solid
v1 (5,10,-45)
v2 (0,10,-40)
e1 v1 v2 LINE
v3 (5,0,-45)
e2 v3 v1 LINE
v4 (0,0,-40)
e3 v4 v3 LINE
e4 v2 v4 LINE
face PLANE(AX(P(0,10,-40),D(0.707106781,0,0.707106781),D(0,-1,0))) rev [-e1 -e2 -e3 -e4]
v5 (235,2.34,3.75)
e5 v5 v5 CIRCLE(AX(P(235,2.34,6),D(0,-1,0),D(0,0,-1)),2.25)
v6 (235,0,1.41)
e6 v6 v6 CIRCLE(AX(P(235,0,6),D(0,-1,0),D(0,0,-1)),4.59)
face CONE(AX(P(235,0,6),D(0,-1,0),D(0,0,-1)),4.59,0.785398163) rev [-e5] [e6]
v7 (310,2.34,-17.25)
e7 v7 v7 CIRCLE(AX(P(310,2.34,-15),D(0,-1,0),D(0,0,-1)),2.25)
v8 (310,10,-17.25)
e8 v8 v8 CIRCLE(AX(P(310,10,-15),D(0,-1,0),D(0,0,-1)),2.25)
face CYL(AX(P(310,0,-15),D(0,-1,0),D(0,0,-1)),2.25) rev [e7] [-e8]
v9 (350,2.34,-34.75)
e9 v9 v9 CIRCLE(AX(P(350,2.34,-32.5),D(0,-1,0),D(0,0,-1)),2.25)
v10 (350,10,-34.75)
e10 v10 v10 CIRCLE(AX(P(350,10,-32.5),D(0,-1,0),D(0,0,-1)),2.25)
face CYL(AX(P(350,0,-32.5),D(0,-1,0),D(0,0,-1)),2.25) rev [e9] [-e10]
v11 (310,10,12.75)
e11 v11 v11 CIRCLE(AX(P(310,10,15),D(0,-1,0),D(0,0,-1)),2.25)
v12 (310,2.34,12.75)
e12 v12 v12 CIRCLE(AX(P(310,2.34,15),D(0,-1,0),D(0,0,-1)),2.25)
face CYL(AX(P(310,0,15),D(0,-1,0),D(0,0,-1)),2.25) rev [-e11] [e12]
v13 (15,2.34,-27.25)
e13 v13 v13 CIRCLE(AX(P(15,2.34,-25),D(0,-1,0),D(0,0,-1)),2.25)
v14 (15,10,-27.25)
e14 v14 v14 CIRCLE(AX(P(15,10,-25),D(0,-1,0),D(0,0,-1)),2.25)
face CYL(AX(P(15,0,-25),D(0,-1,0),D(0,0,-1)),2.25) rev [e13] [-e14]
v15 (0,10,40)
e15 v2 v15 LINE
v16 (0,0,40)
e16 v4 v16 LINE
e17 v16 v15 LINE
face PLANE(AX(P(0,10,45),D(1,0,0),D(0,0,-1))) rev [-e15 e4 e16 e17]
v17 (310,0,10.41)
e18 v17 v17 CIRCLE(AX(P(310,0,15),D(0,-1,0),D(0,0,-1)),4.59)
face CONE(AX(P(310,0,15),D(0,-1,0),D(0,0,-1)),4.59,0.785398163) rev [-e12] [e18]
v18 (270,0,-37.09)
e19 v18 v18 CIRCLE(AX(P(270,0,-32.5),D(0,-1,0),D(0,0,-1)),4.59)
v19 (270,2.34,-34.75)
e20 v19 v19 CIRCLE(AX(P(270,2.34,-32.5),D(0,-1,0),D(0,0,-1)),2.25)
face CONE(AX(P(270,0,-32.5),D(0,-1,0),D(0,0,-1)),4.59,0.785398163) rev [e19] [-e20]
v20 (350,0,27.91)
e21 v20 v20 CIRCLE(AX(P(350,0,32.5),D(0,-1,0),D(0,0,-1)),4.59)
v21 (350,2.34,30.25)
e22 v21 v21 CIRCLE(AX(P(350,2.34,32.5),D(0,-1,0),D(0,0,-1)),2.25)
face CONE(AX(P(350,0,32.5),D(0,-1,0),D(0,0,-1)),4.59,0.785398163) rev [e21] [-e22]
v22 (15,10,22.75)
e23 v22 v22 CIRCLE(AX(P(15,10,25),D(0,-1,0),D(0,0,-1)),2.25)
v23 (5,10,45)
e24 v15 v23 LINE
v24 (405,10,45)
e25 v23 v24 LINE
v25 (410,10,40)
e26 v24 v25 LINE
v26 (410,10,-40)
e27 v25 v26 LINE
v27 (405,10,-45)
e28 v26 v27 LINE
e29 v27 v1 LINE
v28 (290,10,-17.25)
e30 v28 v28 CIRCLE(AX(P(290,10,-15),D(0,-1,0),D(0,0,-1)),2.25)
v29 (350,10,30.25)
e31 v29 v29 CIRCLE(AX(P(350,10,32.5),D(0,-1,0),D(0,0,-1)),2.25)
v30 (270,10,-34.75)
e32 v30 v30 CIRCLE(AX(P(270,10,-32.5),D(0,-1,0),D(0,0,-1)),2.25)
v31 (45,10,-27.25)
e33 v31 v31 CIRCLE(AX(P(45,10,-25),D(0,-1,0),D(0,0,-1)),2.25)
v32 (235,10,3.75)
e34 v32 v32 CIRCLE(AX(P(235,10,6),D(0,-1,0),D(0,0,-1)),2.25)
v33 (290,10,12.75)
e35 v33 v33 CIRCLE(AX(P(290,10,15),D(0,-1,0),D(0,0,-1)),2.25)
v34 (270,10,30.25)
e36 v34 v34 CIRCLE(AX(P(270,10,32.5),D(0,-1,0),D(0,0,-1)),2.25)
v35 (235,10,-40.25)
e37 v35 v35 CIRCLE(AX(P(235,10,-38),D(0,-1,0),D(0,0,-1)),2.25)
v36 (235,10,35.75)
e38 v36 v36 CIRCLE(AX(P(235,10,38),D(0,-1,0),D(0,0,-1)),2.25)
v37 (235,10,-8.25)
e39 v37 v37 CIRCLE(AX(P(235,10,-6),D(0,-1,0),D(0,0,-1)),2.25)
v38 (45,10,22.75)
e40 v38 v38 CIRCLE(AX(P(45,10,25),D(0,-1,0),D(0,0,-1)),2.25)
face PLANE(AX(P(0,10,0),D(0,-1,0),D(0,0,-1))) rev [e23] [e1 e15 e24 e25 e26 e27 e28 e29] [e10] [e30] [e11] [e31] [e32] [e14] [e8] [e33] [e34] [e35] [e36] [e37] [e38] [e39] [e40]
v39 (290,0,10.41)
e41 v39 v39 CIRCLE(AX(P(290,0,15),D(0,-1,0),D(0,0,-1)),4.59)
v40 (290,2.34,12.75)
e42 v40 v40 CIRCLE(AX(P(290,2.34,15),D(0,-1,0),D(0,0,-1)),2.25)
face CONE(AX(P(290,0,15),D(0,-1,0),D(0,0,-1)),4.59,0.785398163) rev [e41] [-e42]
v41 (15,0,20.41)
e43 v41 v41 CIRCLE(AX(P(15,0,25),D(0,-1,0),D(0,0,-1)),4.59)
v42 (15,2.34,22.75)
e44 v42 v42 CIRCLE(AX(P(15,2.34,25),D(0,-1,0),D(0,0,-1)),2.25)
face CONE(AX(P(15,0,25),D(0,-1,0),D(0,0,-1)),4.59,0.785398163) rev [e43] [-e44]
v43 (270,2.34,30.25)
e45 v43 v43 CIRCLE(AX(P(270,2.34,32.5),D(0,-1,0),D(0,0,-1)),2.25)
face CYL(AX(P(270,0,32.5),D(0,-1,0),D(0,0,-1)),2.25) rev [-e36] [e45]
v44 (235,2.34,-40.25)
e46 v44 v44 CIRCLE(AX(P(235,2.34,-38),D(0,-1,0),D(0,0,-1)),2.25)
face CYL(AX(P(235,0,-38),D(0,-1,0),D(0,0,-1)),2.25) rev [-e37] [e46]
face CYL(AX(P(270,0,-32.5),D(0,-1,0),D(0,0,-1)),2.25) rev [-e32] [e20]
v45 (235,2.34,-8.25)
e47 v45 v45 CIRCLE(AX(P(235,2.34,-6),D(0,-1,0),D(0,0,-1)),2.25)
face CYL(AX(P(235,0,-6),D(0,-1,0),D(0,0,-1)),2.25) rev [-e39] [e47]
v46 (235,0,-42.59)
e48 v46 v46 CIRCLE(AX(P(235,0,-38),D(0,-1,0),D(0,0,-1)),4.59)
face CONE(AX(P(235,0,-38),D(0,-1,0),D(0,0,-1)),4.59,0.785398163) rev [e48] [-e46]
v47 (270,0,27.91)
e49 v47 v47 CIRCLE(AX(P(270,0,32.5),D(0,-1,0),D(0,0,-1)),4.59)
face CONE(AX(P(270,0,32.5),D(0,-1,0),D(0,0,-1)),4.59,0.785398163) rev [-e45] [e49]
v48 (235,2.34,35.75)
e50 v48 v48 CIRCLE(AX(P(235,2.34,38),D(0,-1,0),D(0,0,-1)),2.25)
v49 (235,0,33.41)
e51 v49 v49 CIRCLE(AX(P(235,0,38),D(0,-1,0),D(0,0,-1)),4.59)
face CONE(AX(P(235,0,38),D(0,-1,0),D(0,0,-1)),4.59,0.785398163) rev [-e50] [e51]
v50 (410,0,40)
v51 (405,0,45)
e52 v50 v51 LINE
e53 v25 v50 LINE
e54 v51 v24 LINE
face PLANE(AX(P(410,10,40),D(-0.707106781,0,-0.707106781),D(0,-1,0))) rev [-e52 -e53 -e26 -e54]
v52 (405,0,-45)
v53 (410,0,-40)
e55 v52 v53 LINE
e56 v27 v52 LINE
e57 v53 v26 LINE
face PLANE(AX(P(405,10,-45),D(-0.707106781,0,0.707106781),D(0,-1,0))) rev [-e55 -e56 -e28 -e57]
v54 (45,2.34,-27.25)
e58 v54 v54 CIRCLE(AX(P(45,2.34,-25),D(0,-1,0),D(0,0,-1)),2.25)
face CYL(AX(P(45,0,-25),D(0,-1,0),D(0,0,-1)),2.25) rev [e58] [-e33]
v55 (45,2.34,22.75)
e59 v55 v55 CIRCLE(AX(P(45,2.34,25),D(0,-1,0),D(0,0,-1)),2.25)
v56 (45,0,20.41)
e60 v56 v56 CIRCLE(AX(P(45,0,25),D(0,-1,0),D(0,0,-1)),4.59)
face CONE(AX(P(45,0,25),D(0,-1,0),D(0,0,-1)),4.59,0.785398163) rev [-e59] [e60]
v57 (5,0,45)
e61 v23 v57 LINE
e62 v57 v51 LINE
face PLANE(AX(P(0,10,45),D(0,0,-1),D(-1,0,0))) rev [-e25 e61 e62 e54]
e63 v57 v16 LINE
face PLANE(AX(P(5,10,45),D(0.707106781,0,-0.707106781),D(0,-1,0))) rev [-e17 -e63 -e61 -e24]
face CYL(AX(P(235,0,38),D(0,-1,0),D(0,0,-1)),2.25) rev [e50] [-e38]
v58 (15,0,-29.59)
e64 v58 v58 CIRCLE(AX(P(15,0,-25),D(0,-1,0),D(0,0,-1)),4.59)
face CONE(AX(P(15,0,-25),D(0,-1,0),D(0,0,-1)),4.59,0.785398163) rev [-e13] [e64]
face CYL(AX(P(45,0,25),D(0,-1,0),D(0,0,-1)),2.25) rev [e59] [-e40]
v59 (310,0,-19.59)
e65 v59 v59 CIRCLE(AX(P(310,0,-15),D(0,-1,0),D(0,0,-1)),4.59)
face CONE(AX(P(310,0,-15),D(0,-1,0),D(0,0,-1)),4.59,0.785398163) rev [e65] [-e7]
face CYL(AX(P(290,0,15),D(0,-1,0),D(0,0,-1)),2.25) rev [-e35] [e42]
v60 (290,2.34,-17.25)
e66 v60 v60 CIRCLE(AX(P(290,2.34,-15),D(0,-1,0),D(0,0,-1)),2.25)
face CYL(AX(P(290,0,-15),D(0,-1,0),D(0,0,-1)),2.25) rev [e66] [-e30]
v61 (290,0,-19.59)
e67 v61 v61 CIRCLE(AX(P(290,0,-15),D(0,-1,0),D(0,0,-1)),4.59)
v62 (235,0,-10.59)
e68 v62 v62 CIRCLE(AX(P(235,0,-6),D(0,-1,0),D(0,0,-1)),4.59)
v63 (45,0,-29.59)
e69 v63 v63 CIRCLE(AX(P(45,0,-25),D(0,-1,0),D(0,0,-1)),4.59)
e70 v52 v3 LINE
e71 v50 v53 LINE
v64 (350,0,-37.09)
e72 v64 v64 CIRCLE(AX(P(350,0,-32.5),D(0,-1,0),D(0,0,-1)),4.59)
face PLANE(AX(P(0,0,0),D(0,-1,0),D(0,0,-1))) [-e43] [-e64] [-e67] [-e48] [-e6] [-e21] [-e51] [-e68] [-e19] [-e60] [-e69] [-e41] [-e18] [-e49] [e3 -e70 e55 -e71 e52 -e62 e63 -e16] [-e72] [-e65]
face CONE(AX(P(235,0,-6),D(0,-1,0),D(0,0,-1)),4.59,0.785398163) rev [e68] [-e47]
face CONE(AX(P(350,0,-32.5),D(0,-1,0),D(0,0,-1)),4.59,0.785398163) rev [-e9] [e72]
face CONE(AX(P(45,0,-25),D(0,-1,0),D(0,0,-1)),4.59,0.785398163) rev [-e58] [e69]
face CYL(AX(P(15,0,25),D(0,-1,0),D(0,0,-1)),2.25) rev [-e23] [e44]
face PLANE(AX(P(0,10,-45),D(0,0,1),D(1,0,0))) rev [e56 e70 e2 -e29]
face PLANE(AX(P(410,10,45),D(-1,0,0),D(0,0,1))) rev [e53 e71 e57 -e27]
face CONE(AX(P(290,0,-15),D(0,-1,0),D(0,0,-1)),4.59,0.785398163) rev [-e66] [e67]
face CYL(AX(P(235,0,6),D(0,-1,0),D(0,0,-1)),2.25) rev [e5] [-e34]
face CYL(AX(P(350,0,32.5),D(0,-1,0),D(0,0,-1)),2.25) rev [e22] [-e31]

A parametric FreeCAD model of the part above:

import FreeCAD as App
import Part
import Sketcher
from FreeCAD import Vector


def edges_at(feature, points):
    """Names of the edges that pass closest to the given points."""
    edges = feature.Shape.Edges
    near = lambda p: min(range(len(edges)), key=lambda i: edges[i].distToShape(Part.Vertex(*p))[0])
    return sorted({f"Edge{near(p) + 1}" for p in points})


def add_polygon(sketch, points):
    """Adds a closed chain of lines whose ends are joined by coincident constraints."""
    first, n = sketch.GeometryCount, len(points)
    for a, b in zip(points, points[1:] + points[:1]):
        sketch.addGeometry(Part.LineSegment(App.Vector(*a, 0), App.Vector(*b, 0)), False)
    for i in range(n):
        sketch.addConstraint(Sketcher.Constraint("Coincident", first + i, 2, first + (i + 1) % n, 1))

doc = App.newDocument("Part")
body = doc.addObject("PartDesign::Body", "Body")

sketch1 = doc.addObject("Sketcher::SketchObject", "Sketch")
body.addObject(sketch1)
sketch1.AttachmentSupport = (doc.XZ_Plane, [""])
sketch1.MapMode = "FlatFace"
add_polygon(sketch1, [(0, -45), (0, 45), (410, 45), (410, -45)])
sketch1.addConstraint(Sketcher.Constraint("Vertical", 0))
sketch1.addConstraint(Sketcher.Constraint("Horizontal", 1))
sketch1.addConstraint(Sketcher.Constraint("Vertical", 2))
sketch1.addConstraint(Sketcher.Constraint("Horizontal", 3))
sketch1.addConstraint(Sketcher.Constraint("Symmetric", 0, 2, 3, 2, -1, 1))
sketch1.addConstraint(Sketcher.Constraint("DistanceX", 1, 1, 1, 2, 410.0))
sketch1.addConstraint(Sketcher.Constraint("DistanceY", 0, 1, 0, 2, 90.0))
pad1 = doc.addObject("PartDesign::Pad", "Pad")
body.addObject(pad1)
pad1.Profile = sketch1
pad1.Length = 10
pad1.Reversed = True
doc.recompute()

chamfer = doc.addObject("PartDesign::Chamfer", "Chamfer")
body.addObject(chamfer)
chamfer.Base = (pad1, edges_at(pad1, [
    (410, 5, 45),
    (0, 5, 45),
    (0, 5, -45),
    (410, 5, -45),
]))
chamfer.Size = 5

sketch2 = doc.addObject("Sketcher::SketchObject", "Sketch001")
body.addObject(sketch2)
sketch2.AttachmentSupport = (doc.XZ_Plane, [""])
sketch2.MapMode = "FlatFace"
sketch2.addGeometry(Part.Circle(Vector(15, 25, 0), Vector(0, 0, 1), 2.2), False)
sketch2.addGeometry(Part.Circle(Vector(45, -25, 0), Vector(0, 0, 1), 2.2), False)
sketch2.addGeometry(Part.Circle(Vector(45, 25, 0), Vector(0, 0, 1), 2.2), False)
sketch2.addGeometry(Part.Circle(Vector(15, -25, 0), Vector(0, 0, 1), 2.2), False)
sketch2.addConstraint(Sketcher.Constraint("Equal", 0, 1))
sketch2.addConstraint(Sketcher.Constraint("Equal", 1, 2))
sketch2.addConstraint(Sketcher.Constraint("Equal", 2, 3))
sketch2.addConstraint(Sketcher.Constraint("Symmetric", 1, 3, 2, 3, -1))
sketch2.addConstraint(Sketcher.Constraint("Symmetric", 0, 3, 3, 3, -1))
sketch2.addConstraint(Sketcher.Constraint("Horizontal", 0, 3, 2, 3))
sketch2.addConstraint(Sketcher.Constraint("Diameter", 0, 4.5))
sketch2.addConstraint(Sketcher.Constraint("DistanceX", -1, 1, 0, 3, 15.0))
sketch2.addConstraint(Sketcher.Constraint("DistanceY", -1, 1, 0, 3, 25.0))
sketch2.addConstraint(Sketcher.Constraint("DistanceX", -1, 1, 1, 3, 45.0))
doc.recompute()
hole = doc.addObject("PartDesign::Hole", "Hole")
body.addObject(hole)
hole.Profile = sketch2
hole.ThreadType = "None"
hole.Diameter = 4.5
hole.DepthType = "ThroughAll"
hole.HoleCutType = "Countersink"
hole.HoleCutDiameter = 9.18
hole.HoleCutCountersinkAngle = 90

sketch3 = doc.addObject("Sketcher::SketchObject", "Sketch002")
body.addObject(sketch3)
sketch3.AttachmentSupport = (doc.XZ_Plane, [""])
sketch3.MapMode = "FlatFace"
sketch3.addGeometry(Part.Circle(Vector(235, -38, 0), Vector(0, 0, 1), 2.2), False)
sketch3.addGeometry(Part.Circle(Vector(235, -6, 0), Vector(0, 0, 1), 2.2), False)
sketch3.addGeometry(Part.Circle(Vector(235, 6, 0), Vector(0, 0, 1), 2.2), False)
sketch3.addGeometry(Part.Circle(Vector(235, 38, 0), Vector(0, 0, 1), 2.2), False)
sketch3.addConstraint(Sketcher.Constraint("Equal", 0, 1))
sketch3.addConstraint(Sketcher.Constraint("Equal", 1, 2))
sketch3.addConstraint(Sketcher.Constraint("Equal", 2, 3))
sketch3.addConstraint(Sketcher.Constraint("Symmetric", 1, 3, 2, 3, -1))
sketch3.addConstraint(Sketcher.Constraint("Symmetric", 0, 3, 3, 3, -1))
sketch3.addConstraint(Sketcher.Constraint("Vertical", 0, 3, 1, 3))
sketch3.addConstraint(Sketcher.Constraint("Diameter", 0, 4.5))
sketch3.addConstraint(Sketcher.Constraint("DistanceX", -1, 1, 0, 3, 235.0))
sketch3.addConstraint(Sketcher.Constraint("DistanceY", 0, 3, -1, 1, 38.0))
sketch3.addConstraint(Sketcher.Constraint("DistanceY", 1, 3, -1, 1, 6.0))
doc.recompute()
hole2 = doc.addObject("PartDesign::Hole", "Hole001")
body.addObject(hole2)
hole2.Profile = sketch3
hole2.ThreadType = "None"
hole2.Diameter = 4.5
hole2.DepthType = "ThroughAll"
hole2.HoleCutType = "Countersink"
hole2.HoleCutDiameter = 9.18
hole2.HoleCutCountersinkAngle = 90

sketch4 = doc.addObject("Sketcher::SketchObject", "Sketch003")
body.addObject(sketch4)
sketch4.AttachmentSupport = (doc.XZ_Plane, [""])
sketch4.MapMode = "FlatFace"
sketch4.addGeometry(Part.Circle(Vector(290, -15, 0), Vector(0, 0, 1), 2.2), False)
sketch4.addGeometry(Part.Circle(Vector(310, 15, 0), Vector(0, 0, 1), 2.2), False)
sketch4.addGeometry(Part.Circle(Vector(310, -15, 0), Vector(0, 0, 1), 2.2), False)
sketch4.addGeometry(Part.Circle(Vector(290, 15, 0), Vector(0, 0, 1), 2.2), False)
sketch4.addConstraint(Sketcher.Constraint("Equal", 0, 1))
sketch4.addConstraint(Sketcher.Constraint("Equal", 1, 2))
sketch4.addConstraint(Sketcher.Constraint("Equal", 2, 3))
sketch4.addConstraint(Sketcher.Constraint("Symmetric", 1, 3, 2, 3, -1))
sketch4.addConstraint(Sketcher.Constraint("Symmetric", 0, 3, 3, 3, -1))
sketch4.addConstraint(Sketcher.Constraint("Horizontal", 0, 3, 2, 3))
sketch4.addConstraint(Sketcher.Constraint("Diameter", 0, 4.5))
sketch4.addConstraint(Sketcher.Constraint("DistanceX", -1, 1, 0, 3, 290.0))
sketch4.addConstraint(Sketcher.Constraint("DistanceY", 0, 3, -1, 1, 15.0))
sketch4.addConstraint(Sketcher.Constraint("DistanceX", -1, 1, 1, 3, 310.0))
doc.recompute()
hole3 = doc.addObject("PartDesign::Hole", "Hole002")
body.addObject(hole3)
hole3.Profile = sketch4
hole3.ThreadType = "None"
hole3.Diameter = 4.5
hole3.DepthType = "ThroughAll"
hole3.HoleCutType = "Countersink"
hole3.HoleCutDiameter = 9.18
hole3.HoleCutCountersinkAngle = 90

sketch5 = doc.addObject("Sketcher::SketchObject", "Sketch004")
body.addObject(sketch5)
sketch5.AttachmentSupport = (doc.XZ_Plane, [""])
sketch5.MapMode = "FlatFace"
sketch5.addGeometry(Part.Circle(Vector(270, -32.5, 0), Vector(0, 0, 1), 2.2), False)
sketch5.addGeometry(Part.Circle(Vector(350, 32.5, 0), Vector(0, 0, 1), 2.2), False)
sketch5.addGeometry(Part.Circle(Vector(350, -32.5, 0), Vector(0, 0, 1), 2.2), False)
sketch5.addGeometry(Part.Circle(Vector(270, 32.5, 0), Vector(0, 0, 1), 2.2), False)
sketch5.addConstraint(Sketcher.Constraint("Equal", 0, 1))
sketch5.addConstraint(Sketcher.Constraint("Equal", 1, 2))
sketch5.addConstraint(Sketcher.Constraint("Equal", 2, 3))
sketch5.addConstraint(Sketcher.Constraint("Symmetric", 1, 3, 2, 3, -1))
sketch5.addConstraint(Sketcher.Constraint("Symmetric", 0, 3, 3, 3, -1))
sketch5.addConstraint(Sketcher.Constraint("Horizontal", 0, 3, 2, 3))
sketch5.addConstraint(Sketcher.Constraint("Diameter", 0, 4.5))
sketch5.addConstraint(Sketcher.Constraint("DistanceX", -1, 1, 0, 3, 270.0))
sketch5.addConstraint(Sketcher.Constraint("DistanceX", -1, 1, 1, 3, 350.0))
sketch5.addConstraint(Sketcher.Constraint("DistanceY", 0, 3, 1, 3, 65.0))
doc.recompute()
hole4 = doc.addObject("PartDesign::Hole", "Hole003")
body.addObject(hole4)
hole4.Profile = sketch5
hole4.ThreadType = "None"
hole4.Diameter = 4.5
hole4.DepthType = "ThroughAll"
hole4.HoleCutType = "Countersink"
hole4.HoleCutDiameter = 9.18
hole4.HoleCutCountersinkAngle = 90

doc.recompute()
